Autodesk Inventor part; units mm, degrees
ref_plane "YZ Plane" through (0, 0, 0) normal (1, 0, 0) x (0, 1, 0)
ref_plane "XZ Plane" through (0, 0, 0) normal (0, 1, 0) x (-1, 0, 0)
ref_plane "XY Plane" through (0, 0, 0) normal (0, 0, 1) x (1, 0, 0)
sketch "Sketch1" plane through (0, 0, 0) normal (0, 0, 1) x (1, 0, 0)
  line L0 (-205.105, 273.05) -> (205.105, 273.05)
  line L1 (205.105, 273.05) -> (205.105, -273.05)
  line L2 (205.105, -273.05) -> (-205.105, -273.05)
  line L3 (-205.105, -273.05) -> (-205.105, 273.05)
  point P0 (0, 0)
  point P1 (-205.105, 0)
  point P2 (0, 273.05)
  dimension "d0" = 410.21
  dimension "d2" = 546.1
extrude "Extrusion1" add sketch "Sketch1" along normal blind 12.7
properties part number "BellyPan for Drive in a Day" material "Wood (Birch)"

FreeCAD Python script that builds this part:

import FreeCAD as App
import Part
import Sketcher
from FreeCAD import Vector
Q = App.Units.Quantity

doc = App.newDocument("Part")
body = doc.addObject("PartDesign::Body", "Body")

# Sketch on XY plane
sketch1 = body.newObject("Sketcher::SketchObject", "Sketch")
sketch1.AttachmentSupport = (doc.getObject("XY_Plane"), [""])
sketch1.MapMode = "FlatFace"
sketch1.addGeometry([
    Part.LineSegment(Vector(205, 273, 0), Vector(-205, 273, 0)),
    Part.LineSegment(Vector(-205, 273, 0), Vector(-205, -273, 0)),
    Part.LineSegment(Vector(-205, -273, 0), Vector(205, -273, 0)),
    Part.LineSegment(Vector(205, -273, 0), Vector(205, 273, 0)),
], False)
sketch1.addConstraint([
    Sketcher.Constraint("Coincident", 0, 2, 1, 1),
    Sketcher.Constraint("Coincident", 1, 2, 2, 1),
    Sketcher.Constraint("Coincident", 2, 2, 3, 1),
    Sketcher.Constraint("Coincident", 3, 2, 0, 1),
    Sketcher.Constraint("Horizontal", 0),
    Sketcher.Constraint("Vertical", 1),
    Sketcher.Constraint("Horizontal", 2),
    Sketcher.Constraint("Vertical", 3),
    Sketcher.Constraint("Symmetric", 0, 2, 2, 2, -1, 1),
    Sketcher.Constraint("DistanceY", 1, 2, 1, 1, Q("21.5 in")),
    Sketcher.Constraint("DistanceX", 0, 2, 0, 1, Q("16.15 in")),
])
pad1 = body.newObject("PartDesign::Pad", "Pad")
pad1.Profile = sketch1
pad1.Length = Q("0.5 in")

doc.recompute()
